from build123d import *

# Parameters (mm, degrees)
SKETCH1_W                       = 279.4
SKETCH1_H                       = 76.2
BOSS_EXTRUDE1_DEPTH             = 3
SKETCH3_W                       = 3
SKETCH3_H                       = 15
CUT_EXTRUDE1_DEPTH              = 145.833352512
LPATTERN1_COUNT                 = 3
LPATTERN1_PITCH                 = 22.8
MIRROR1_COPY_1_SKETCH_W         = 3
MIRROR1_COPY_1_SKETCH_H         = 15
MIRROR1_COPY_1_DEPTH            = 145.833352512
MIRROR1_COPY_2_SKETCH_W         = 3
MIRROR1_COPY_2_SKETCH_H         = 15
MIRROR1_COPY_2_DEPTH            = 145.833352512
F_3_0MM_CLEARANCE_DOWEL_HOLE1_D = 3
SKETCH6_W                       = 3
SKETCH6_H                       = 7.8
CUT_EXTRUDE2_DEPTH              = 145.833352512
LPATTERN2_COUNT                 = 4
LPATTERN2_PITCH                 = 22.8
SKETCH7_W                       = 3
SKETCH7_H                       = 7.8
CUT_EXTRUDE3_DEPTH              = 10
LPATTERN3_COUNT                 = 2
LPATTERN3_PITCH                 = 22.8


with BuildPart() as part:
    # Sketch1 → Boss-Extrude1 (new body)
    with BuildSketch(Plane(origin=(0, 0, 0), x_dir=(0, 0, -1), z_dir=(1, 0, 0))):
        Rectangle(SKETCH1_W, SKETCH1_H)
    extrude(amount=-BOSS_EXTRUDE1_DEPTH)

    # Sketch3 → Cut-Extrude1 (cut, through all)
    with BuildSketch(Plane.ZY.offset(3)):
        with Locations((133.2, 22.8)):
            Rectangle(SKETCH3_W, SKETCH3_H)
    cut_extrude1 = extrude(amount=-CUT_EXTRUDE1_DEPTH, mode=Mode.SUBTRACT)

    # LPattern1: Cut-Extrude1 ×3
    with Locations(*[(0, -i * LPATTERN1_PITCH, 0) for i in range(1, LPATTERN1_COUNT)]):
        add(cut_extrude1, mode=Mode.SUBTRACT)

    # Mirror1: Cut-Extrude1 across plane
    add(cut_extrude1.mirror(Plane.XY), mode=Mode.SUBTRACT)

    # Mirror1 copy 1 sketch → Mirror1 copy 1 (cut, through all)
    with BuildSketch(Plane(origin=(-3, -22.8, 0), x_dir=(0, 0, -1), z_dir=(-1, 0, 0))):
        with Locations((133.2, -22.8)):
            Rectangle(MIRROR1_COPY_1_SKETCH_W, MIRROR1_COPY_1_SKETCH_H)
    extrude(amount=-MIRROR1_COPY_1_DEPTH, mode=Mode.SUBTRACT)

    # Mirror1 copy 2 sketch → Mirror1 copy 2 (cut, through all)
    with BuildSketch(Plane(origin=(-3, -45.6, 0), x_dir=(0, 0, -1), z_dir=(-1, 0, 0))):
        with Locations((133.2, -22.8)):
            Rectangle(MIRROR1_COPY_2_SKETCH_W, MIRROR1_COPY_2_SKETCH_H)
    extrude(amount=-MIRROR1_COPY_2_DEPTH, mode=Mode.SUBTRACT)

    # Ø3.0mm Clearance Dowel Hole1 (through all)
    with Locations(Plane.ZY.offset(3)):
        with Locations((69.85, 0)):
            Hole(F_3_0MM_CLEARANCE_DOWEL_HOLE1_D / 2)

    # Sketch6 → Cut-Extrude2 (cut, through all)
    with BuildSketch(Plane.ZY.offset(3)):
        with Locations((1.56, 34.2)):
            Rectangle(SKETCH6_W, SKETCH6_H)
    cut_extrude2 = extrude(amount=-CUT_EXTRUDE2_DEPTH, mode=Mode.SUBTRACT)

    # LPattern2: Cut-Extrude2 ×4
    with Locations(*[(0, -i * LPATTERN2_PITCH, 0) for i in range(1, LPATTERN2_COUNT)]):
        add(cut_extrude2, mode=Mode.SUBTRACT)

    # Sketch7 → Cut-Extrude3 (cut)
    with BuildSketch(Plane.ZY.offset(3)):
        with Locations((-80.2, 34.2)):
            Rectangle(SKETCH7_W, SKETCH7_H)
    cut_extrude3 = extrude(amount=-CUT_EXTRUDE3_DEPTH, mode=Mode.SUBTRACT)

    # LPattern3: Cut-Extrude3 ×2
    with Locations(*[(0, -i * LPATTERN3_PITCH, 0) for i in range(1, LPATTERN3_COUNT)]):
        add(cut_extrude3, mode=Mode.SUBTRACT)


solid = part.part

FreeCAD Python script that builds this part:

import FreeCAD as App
import Part
import Sketcher
from FreeCAD import Vector
Q = App.Units.Quantity

doc = App.newDocument("Part")
body = doc.addObject("PartDesign::Body", "Body")

sketch1 = body.newObject("Sketcher::SketchObject", "Sketch")
sketch1.AttachmentSupport = (doc.getObject("YZ_Plane"), [""])
sketch1.MapMode = "FlatFace"
sketch1.addGeometry([
    Part.LineSegment(Vector(38, 140, 0), Vector(-38, 140, 0)),
    Part.LineSegment(Vector(-38, 140, 0), Vector(-38, -140, 0)),
    Part.LineSegment(Vector(-38, -140, 0), Vector(38, -140, 0)),
    Part.LineSegment(Vector(38, -140, 0), Vector(38, 140, 0)),
], False)
sketch1.addConstraint([
    Sketcher.Constraint("Coincident", 0, 2, 1, 1),
    Sketcher.Constraint("Coincident", 1, 2, 2, 1),
    Sketcher.Constraint("Coincident", 2, 2, 3, 1),
    Sketcher.Constraint("Coincident", 3, 2, 0, 1),
    Sketcher.Constraint("Horizontal", 0),
    Sketcher.Constraint("Vertical", 1),
    Sketcher.Constraint("Horizontal", 2),
    Sketcher.Constraint("Vertical", 3),
    Sketcher.Constraint("Symmetric", 0, 2, 2, 2, -1, 1),
    Sketcher.Constraint("DistanceX", 0, 2, 0, 1, Q("76.2 mm")),
    Sketcher.Constraint("DistanceY", 1, 2, 1, 1, Q("279.4 mm")),
])
pad1 = body.newObject("PartDesign::Pad", "Pad")
pad1.Profile = sketch1
pad1.Length = 3
pad1.Reversed = True

sketch2 = body.newObject("Sketcher::SketchObject", "Sketch001")
sketch2.AttachmentSupport = (doc.getObject("YZ_Plane"), [""])
sketch2.MapMode = "FlatFace"
sketch2.AttachmentOffset = App.Placement(Vector(0, 0, -3), App.Rotation())
sketch2.addGeometry([
    Part.LineSegment(Vector(30.3, 131.7, 0), Vector(15.3, 131.7, 0)),
    Part.LineSegment(Vector(15.3, 131.7, 0), Vector(15.3, 134.7, 0)),
    Part.LineSegment(Vector(15.3, 134.7, 0), Vector(30.3, 134.7, 0)),
    Part.LineSegment(Vector(30.3, 134.7, 0), Vector(30.3, 131.7, 0)),
], False)
sketch2.addConstraint([
    Sketcher.Constraint("Coincident", 0, 2, 1, 1),
    Sketcher.Constraint("Coincident", 1, 2, 2, 1),
    Sketcher.Constraint("Coincident", 2, 2, 3, 1),
    Sketcher.Constraint("Coincident", 3, 2, 0, 1),
    Sketcher.Constraint("Horizontal", 0),
    Sketcher.Constraint("Vertical", 1),
    Sketcher.Constraint("Horizontal", 2),
    Sketcher.Constraint("Vertical", 3),
    Sketcher.Constraint("DistanceX", 0, 2, 0, 1, Q("15 mm")),
    Sketcher.Constraint("DistanceY", 1, 1, 1, 2, Q("3 mm")),
    Sketcher.Constraint("DistanceX", -1, 1, 0, 2, Q("15.3 mm")),
    Sketcher.Constraint("DistanceY", -1, 1, 0, 2, Q("131.7 mm")),
])
pocket1 = body.newObject("PartDesign::Pocket", "Pocket")
pocket1.Profile = sketch2
pocket1.Type = "ThroughAll"
pocket1.Reversed = True
doc.recompute()

linearpattern = body.newObject("PartDesign::LinearPattern", "LinearPattern")
linearpattern.Originals = [pocket1]
linearpattern.Direction = (doc.getObject("Y_Axis"), [""])
linearpattern.Mode = "offset"
linearpattern.Offset = 22.8
linearpattern.Occurrences = 3
linearpattern.Reversed = True
body.Tip = linearpattern
doc.recompute()

mirrored = body.newObject("PartDesign::Mirrored", "Mirrored")
mirrored.Originals = [pocket1]
mirrored.MirrorPlane = (doc.getObject("XY_Plane"), [""])
body.Tip = mirrored

sketch3 = body.newObject("Sketcher::SketchObject", "Sketch002")
sketch3.AttachmentSupport = (doc.getObject("YZ_Plane"), [""])
sketch3.MapMode = "FlatFace"
sketch3.AttachmentOffset = App.Placement(Vector(0, 0, -3), App.Rotation())
sketch3.addGeometry([
    Part.LineSegment(Vector(-7.5, -131.7, 0), Vector(7.5, -131.7, 0)),
    Part.LineSegment(Vector(7.5, -131.7, 0), Vector(7.5, -134.7, 0)),
    Part.LineSegment(Vector(7.5, -134.7, 0), Vector(-7.5, -134.7, 0)),
    Part.LineSegment(Vector(-7.5, -134.7, 0), Vector(-7.5, -131.7, 0)),
], False)
sketch3.addConstraint([
    Sketcher.Constraint("Coincident", 0, 2, 1, 1),
    Sketcher.Constraint("Coincident", 1, 2, 2, 1),
    Sketcher.Constraint("Coincident", 2, 2, 3, 1),
    Sketcher.Constraint("Coincident", 3, 2, 0, 1),
    Sketcher.Constraint("Horizontal", 0),
    Sketcher.Constraint("Vertical", 1),
    Sketcher.Constraint("Horizontal", 2),
    Sketcher.Constraint("Vertical", 3),
    Sketcher.Constraint("DistanceX", 0, 1, 0, 2, Q("15 mm")),
    Sketcher.Constraint("DistanceY", 1, 2, 1, 1, Q("3 mm")),
    Sketcher.Constraint("DistanceX", -1, 1, 0, 2, Q("7.5 mm")),
    Sketcher.Constraint("DistanceY", 0, 2, -1, 1, Q("131.7 mm")),
])
pocket2 = body.newObject("PartDesign::Pocket", "Pocket001")
pocket2.Profile = sketch3
pocket2.Type = "ThroughAll"
pocket2.Reversed = True

sketch4 = body.newObject("Sketcher::SketchObject", "Sketch003")
sketch4.AttachmentSupport = (doc.getObject("YZ_Plane"), [""])
sketch4.MapMode = "FlatFace"
sketch4.AttachmentOffset = App.Placement(Vector(0, 0, -3), App.Rotation())
sketch4.addGeometry([
    Part.LineSegment(Vector(-30.3, -131.7, 0), Vector(-15.3, -131.7, 0)),
    Part.LineSegment(Vector(-15.3, -131.7, 0), Vector(-15.3, -134.7, 0)),
    Part.LineSegment(Vector(-15.3, -134.7, 0), Vector(-30.3, -134.7, 0)),
    Part.LineSegment(Vector(-30.3, -134.7, 0), Vector(-30.3, -131.7, 0)),
], False)
sketch4.addConstraint([
    Sketcher.Constraint("Coincident", 0, 2, 1, 1),
    Sketcher.Constraint("Coincident", 1, 2, 2, 1),
    Sketcher.Constraint("Coincident", 2, 2, 3, 1),
    Sketcher.Constraint("Coincident", 3, 2, 0, 1),
    Sketcher.Constraint("Horizontal", 0),
    Sketcher.Constraint("Vertical", 1),
    Sketcher.Constraint("Horizontal", 2),
    Sketcher.Constraint("Vertical", 3),
    Sketcher.Constraint("DistanceX", 0, 1, 0, 2, Q("15 mm")),
    Sketcher.Constraint("DistanceY", 1, 2, 1, 1, Q("3 mm")),
    Sketcher.Constraint("DistanceX", 0, 2, -1, 1, Q("15.3 mm")),
    Sketcher.Constraint("DistanceY", 0, 2, -1, 1, Q("131.7 mm")),
])
pocket3 = body.newObject("PartDesign::Pocket", "Pocket002")
pocket3.Profile = sketch4
pocket3.Type = "ThroughAll"
pocket3.Reversed = True

sketch5 = body.newObject("Sketcher::SketchObject", "Sketch004")
sketch5.AttachmentSupport = (doc.getObject("YZ_Plane"), [""])
sketch5.MapMode = "FlatFace"
sketch5.AttachmentOffset = App.Placement(Vector(0, 0, -3), App.Rotation())
sketch5.addGeometry(Part.Circle(Vector(0, 69.8, 0), Vector(0, 0, 1), 1.5), False)
sketch5.addConstraint([
    Sketcher.Constraint("PointOnObject", 0, 3, -2),
    Sketcher.Constraint("Diameter", 0, Q("3 mm")),
    Sketcher.Constraint("DistanceY", -1, 1, 0, 3, Q("69.85 mm")),
])
doc.recompute()
hole = body.newObject("PartDesign::Hole", "Hole")
hole.Profile = sketch5
hole.ThreadType = "None"
hole.Diameter = 3
hole.DepthType = "ThroughAll"
hole.Reversed = True

sketch6 = body.newObject("Sketcher::SketchObject", "Sketch005")
sketch6.AttachmentSupport = (doc.getObject("YZ_Plane"), [""])
sketch6.MapMode = "FlatFace"
sketch6.AttachmentOffset = App.Placement(Vector(0, 0, -3), App.Rotation())
sketch6.addGeometry([
    Part.LineSegment(Vector(38.1, 0.1, 0), Vector(30.3, 0.1, 0)),
    Part.LineSegment(Vector(30.3, 0.1, 0), Vector(30.3, 3.1, 0)),
    Part.LineSegment(Vector(30.3, 3.1, 0), Vector(38.1, 3.1, 0)),
    Part.LineSegment(Vector(38.1, 3.1, 0), Vector(38.1, 0.1, 0)),
], False)
sketch6.addConstraint([
    Sketcher.Constraint("Coincident", 0, 2, 1, 1),
    Sketcher.Constraint("Coincident", 1, 2, 2, 1),
    Sketcher.Constraint("Coincident", 2, 2, 3, 1),
    Sketcher.Constraint("Coincident", 3, 2, 0, 1),
    Sketcher.Constraint("Horizontal", 0),
    Sketcher.Constraint("Vertical", 1),
    Sketcher.Constraint("Horizontal", 2),
    Sketcher.Constraint("Vertical", 3),
    Sketcher.Constraint("DistanceY", 1, 1, 1, 2, Q("3 mm")),
    Sketcher.Constraint("DistanceX", 0, 2, 0, 1, Q("7.8 mm")),
    Sketcher.Constraint("DistanceX", -1, 1, 0, 2, Q("30.3 mm")),
    Sketcher.Constraint("DistanceY", -1, 1, 0, 2, Q("0.06 mm")),
])
pocket4 = body.newObject("PartDesign::Pocket", "Pocket003")
pocket4.Profile = sketch6
pocket4.Type = "ThroughAll"
pocket4.Reversed = True
doc.recompute()

linearpattern2 = body.newObject("PartDesign::LinearPattern", "LinearPattern001")
linearpattern2.Originals = [pocket4]
linearpattern2.Direction = (doc.getObject("Y_Axis"), [""])
linearpattern2.Mode = "offset"
linearpattern2.Offset = 22.8
linearpattern2.Occurrences = 4
linearpattern2.Reversed = True
body.Tip = linearpattern2

sketch7 = body.newObject("Sketcher::SketchObject", "Sketch006")
sketch7.AttachmentSupport = (doc.getObject("YZ_Plane"), [""])
sketch7.MapMode = "FlatFace"
sketch7.AttachmentOffset = App.Placement(Vector(0, 0, -3), App.Rotation())
sketch7.addGeometry([
    Part.LineSegment(Vector(38.1, -81.7, 0), Vector(30.3, -81.7, 0)),
    Part.LineSegment(Vector(30.3, -81.7, 0), Vector(30.3, -78.7, 0)),
    Part.LineSegment(Vector(30.3, -78.7, 0), Vector(38.1, -78.7, 0)),
    Part.LineSegment(Vector(38.1, -78.7, 0), Vector(38.1, -81.7, 0)),
], False)
sketch7.addConstraint([
    Sketcher.Constraint("Coincident", 0, 2, 1, 1),
    Sketcher.Constraint("Coincident", 1, 2, 2, 1),
    Sketcher.Constraint("Coincident", 2, 2, 3, 1),
    Sketcher.Constraint("Coincident", 3, 2, 0, 1),
    Sketcher.Constraint("Horizontal", 0),
    Sketcher.Constraint("Vertical", 1),
    Sketcher.Constraint("Horizontal", 2),
    Sketcher.Constraint("Vertical", 3),
    Sketcher.Constraint("DistanceY", 1, 1, 1, 2, Q("3 mm")),
    Sketcher.Constraint("DistanceX", 0, 2, 0, 1, Q("7.8 mm")),
    Sketcher.Constraint("DistanceX", -1, 1, 0, 2, Q("30.3 mm")),
    Sketcher.Constraint("DistanceY", 0, 2, -1, 1, Q("81.7 mm")),
])
pocket5 = body.newObject("PartDesign::Pocket", "Pocket004")
pocket5.Profile = sketch7
pocket5.Length = 10
pocket5.Reversed = True
doc.recompute()

linearpattern3 = body.newObject("PartDesign::LinearPattern", "LinearPattern002")
linearpattern3.Originals = [pocket5]
linearpattern3.Direction = (doc.getObject("Y_Axis"), [""])
linearpattern3.Mode = "offset"
linearpattern3.Offset = 22.8
linearpattern3.Occurrences = 2
linearpattern3.Reversed = True
body.Tip = linearpattern3

doc.recompute()
